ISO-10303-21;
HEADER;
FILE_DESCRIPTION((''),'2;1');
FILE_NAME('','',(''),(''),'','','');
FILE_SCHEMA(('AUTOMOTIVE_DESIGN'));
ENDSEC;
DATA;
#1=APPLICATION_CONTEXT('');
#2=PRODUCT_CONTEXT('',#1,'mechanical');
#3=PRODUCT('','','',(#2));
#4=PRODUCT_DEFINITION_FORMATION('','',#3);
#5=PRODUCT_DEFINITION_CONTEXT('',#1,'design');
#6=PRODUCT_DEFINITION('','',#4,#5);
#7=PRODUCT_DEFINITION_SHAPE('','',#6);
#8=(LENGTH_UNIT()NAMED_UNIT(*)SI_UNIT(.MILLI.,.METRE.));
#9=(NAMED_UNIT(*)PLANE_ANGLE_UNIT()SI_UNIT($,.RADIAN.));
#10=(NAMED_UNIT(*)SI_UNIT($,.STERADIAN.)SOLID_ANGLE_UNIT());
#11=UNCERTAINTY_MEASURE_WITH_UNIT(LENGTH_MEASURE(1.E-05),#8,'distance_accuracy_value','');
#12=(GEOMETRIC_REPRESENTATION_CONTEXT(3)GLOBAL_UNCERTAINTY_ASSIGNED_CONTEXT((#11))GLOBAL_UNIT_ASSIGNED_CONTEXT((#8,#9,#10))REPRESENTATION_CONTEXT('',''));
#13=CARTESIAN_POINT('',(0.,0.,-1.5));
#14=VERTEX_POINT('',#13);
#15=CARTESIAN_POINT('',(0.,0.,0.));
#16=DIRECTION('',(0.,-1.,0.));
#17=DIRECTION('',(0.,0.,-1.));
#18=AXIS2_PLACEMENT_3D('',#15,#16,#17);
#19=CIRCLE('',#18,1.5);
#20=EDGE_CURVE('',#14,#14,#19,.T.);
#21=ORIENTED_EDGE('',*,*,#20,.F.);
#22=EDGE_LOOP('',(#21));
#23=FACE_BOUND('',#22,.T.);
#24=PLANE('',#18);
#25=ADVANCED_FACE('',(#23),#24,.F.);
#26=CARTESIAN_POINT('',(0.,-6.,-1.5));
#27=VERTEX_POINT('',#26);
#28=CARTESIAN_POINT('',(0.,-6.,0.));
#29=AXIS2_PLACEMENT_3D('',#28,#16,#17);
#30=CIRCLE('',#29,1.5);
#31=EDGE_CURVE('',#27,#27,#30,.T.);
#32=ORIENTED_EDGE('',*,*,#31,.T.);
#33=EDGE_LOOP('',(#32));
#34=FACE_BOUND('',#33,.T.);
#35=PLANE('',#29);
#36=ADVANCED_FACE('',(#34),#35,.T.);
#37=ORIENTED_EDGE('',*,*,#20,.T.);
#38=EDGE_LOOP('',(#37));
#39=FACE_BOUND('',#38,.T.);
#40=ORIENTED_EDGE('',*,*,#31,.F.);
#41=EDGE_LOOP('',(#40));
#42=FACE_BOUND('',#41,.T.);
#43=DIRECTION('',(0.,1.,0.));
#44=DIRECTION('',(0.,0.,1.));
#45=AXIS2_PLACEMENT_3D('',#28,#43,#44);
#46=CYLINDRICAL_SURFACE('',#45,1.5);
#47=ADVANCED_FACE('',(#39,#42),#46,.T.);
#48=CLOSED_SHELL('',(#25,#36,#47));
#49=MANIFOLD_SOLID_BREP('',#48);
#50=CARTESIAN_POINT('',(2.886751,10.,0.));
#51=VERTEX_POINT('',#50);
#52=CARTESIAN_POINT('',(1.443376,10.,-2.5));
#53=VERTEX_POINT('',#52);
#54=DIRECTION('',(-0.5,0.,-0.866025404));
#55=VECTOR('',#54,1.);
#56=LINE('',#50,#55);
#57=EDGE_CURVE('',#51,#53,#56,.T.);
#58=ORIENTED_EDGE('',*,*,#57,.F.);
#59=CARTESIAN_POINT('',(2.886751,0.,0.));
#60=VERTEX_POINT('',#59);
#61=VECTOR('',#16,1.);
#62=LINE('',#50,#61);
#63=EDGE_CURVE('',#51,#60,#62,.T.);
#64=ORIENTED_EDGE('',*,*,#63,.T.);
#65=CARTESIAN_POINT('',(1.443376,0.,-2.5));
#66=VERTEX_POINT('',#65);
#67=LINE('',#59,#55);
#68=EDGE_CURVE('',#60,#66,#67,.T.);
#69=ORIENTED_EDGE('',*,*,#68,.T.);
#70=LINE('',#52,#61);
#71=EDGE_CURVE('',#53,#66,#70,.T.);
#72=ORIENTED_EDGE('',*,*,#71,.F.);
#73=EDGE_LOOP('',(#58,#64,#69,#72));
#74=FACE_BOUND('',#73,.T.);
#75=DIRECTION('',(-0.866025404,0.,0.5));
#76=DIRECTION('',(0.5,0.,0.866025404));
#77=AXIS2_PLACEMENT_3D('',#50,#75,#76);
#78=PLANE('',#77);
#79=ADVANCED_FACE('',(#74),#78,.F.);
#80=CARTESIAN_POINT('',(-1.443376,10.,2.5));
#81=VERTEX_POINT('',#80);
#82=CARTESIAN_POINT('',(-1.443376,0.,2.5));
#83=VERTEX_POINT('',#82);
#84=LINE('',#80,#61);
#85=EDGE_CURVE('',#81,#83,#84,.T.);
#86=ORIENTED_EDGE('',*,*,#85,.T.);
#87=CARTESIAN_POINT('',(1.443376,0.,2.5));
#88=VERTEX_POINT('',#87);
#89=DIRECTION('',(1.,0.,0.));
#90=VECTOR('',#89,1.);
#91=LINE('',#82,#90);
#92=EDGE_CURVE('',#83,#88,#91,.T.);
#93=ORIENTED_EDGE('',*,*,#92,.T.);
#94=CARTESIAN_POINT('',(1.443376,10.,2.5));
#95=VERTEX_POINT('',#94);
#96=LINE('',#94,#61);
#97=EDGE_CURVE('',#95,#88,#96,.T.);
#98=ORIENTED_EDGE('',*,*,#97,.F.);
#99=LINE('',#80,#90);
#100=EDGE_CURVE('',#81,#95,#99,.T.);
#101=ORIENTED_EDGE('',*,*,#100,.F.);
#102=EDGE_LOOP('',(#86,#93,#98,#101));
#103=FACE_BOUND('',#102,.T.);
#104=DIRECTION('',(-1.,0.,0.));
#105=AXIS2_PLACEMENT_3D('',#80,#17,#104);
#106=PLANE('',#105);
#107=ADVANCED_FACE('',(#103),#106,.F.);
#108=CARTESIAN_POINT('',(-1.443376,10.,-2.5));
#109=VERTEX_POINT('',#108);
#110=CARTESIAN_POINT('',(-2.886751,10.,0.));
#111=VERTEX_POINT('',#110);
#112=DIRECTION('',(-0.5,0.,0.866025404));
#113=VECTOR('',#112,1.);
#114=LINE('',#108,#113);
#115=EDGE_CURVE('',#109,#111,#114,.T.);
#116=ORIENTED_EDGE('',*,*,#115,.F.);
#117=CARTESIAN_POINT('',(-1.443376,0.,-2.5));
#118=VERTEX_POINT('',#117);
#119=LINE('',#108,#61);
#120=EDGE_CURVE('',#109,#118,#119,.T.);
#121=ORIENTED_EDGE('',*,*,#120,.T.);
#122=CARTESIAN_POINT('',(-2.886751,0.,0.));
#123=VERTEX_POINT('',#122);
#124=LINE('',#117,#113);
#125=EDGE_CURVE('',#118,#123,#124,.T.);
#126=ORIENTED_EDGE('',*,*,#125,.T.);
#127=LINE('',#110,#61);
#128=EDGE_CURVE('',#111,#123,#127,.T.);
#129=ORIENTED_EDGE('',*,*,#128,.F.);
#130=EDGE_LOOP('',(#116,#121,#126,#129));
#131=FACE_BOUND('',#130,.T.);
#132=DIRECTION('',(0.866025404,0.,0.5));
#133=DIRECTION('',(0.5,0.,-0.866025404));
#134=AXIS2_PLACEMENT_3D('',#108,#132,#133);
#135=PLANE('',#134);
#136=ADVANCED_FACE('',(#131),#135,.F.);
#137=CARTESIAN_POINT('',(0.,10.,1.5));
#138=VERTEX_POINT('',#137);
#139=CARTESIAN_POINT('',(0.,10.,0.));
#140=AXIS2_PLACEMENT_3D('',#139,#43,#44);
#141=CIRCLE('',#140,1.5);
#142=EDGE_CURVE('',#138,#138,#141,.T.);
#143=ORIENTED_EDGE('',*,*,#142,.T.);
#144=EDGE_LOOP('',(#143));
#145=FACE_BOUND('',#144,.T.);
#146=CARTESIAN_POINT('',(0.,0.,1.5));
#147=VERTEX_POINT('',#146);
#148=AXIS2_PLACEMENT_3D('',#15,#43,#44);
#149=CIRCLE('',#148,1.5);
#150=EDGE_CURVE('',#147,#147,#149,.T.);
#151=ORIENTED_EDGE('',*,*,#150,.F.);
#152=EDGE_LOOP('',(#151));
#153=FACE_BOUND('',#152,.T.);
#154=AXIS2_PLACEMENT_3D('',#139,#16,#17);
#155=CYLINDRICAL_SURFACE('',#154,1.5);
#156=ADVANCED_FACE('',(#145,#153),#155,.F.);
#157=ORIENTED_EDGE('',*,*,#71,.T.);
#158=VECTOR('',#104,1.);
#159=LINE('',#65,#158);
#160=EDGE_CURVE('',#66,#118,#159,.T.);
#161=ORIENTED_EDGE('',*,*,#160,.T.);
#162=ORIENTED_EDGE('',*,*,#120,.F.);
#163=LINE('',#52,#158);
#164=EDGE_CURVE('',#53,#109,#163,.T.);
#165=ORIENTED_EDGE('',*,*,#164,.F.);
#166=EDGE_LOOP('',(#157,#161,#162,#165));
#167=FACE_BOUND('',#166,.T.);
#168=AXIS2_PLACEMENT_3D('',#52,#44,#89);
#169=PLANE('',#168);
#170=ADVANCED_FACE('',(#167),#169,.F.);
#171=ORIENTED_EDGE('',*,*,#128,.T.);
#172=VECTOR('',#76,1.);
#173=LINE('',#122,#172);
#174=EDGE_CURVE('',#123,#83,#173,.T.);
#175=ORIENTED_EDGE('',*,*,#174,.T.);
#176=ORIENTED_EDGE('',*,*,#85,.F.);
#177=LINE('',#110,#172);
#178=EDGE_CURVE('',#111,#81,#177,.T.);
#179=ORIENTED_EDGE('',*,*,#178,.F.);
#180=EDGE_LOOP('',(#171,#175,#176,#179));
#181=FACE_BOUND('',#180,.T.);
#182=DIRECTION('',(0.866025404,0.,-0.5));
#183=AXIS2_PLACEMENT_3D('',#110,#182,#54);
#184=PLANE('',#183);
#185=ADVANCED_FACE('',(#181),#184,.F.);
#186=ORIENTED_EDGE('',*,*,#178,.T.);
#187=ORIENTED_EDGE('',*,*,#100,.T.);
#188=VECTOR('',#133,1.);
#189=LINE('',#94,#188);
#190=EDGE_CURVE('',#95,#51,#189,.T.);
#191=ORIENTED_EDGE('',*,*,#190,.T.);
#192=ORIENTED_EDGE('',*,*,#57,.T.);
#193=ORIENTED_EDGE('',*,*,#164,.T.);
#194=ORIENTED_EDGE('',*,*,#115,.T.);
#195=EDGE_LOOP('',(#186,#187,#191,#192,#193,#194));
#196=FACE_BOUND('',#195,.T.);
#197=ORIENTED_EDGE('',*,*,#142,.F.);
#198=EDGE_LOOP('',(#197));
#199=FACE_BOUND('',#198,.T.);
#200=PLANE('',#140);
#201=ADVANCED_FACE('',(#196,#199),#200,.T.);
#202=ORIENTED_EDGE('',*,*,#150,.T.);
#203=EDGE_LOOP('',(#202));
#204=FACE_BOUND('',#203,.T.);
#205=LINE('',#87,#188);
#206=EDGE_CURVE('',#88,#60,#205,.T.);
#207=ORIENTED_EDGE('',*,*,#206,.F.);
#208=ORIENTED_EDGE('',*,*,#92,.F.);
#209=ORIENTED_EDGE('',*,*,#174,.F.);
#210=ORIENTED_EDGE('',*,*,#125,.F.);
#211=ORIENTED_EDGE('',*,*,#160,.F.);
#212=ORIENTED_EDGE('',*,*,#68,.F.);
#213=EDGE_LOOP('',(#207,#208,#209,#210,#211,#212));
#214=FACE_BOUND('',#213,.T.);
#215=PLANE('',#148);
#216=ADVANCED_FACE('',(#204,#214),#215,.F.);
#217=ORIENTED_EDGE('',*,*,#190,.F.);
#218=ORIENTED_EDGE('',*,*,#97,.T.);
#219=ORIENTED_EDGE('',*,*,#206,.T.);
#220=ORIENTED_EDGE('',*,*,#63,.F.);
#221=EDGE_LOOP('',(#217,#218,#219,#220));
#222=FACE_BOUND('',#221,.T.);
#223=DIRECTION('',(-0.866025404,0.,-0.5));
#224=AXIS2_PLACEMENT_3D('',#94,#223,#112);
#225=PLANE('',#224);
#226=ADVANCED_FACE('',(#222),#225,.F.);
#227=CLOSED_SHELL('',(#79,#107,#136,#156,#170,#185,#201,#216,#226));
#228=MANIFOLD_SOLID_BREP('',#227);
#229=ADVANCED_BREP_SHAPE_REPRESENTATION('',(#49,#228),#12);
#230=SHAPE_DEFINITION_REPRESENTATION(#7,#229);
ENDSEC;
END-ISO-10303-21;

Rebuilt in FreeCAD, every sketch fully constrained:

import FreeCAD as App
import Part
import Sketcher
from FreeCAD import Vector
Q = App.Units.Quantity


def add_polygon(sketch, points):
    """Adds a closed chain of lines whose ends are joined by coincident constraints."""
    first, n = sketch.GeometryCount, len(points)
    for a, b in zip(points, points[1:] + points[:1]):
        sketch.addGeometry(Part.LineSegment(App.Vector(*a, 0), App.Vector(*b, 0)), False)
    for i in range(n):
        sketch.addConstraint(Sketcher.Constraint("Coincident", first + i, 2, first + (i + 1) % n, 1))

doc = App.newDocument("Part")
body = doc.addObject("PartDesign::Body", "Body")

sketch1 = doc.addObject("Sketcher::SketchObject", "Sketch")
body.addObject(sketch1)
sketch1.AttachmentSupport = (doc.XZ_Plane, [""])
sketch1.MapMode = "FlatFace"
add_polygon(sketch1, [(1.4, 2.5), (2.9, 0), (1.4, -2.5), (-1.4, -2.5), (-2.9, 0), (-1.4, 2.5)])
sketch1.addGeometry(Part.Circle(Vector(0, 0, 0), Vector(0, 0, 1), 1.5), False)
sketch1.addConstraint(Sketcher.Constraint("Horizontal", 2))
sketch1.addConstraint(Sketcher.Constraint("Horizontal", 5))
sketch1.addConstraint(Sketcher.Constraint("Coincident", 6, 3, -1, 1))
sketch1.addConstraint(Sketcher.Constraint("Symmetric", 0, 2, 3, 2, -1, 1))
sketch1.addConstraint(Sketcher.Constraint("Symmetric", 1, 2, 4, 2, -1, 1))
sketch1.addConstraint(Sketcher.Constraint("PointOnObject", 0, 2, -1))
sketch1.addConstraint(Sketcher.Constraint("Parallel", 0, 3))
sketch1.addConstraint(Sketcher.Constraint("Vertical", 2, 2, 4, 2))
sketch1.addConstraint(Sketcher.Constraint("Diameter", 6, Q("3 mm")))
sketch1.addConstraint(Sketcher.Constraint("Angle", 0, Q("-60 deg")))
sketch1.addConstraint(Sketcher.Constraint("DistanceY", 2, 2, 4, 2, Q("5 mm")))
sketch1.addConstraint(Sketcher.Constraint("DistanceX", 2, 2, 2, 1, Q("2.886751 mm")))
pad1 = doc.addObject("PartDesign::Pad", "Pad")
body.addObject(pad1)
pad1.Profile = sketch1
pad1.Length = 10
pad1.Reversed = True
body2 = doc.addObject("PartDesign::Body", "Body001")

sketch2 = doc.addObject("Sketcher::SketchObject", "Sketch001")
body2.addObject(sketch2)
sketch2.AttachmentSupport = (doc.getObject("XZ_Plane001"), [""])
sketch2.MapMode = "FlatFace"
sketch2.addGeometry(Part.Circle(Vector(0, 0, 0), Vector(0, 0, 1), 1.5), False)
sketch2.addConstraint(Sketcher.Constraint("Coincident", 0, 3, -1, 1))
sketch2.addConstraint(Sketcher.Constraint("Diameter", 0, Q("3 mm")))
pad2 = doc.addObject("PartDesign::Pad", "Pad001")
body2.addObject(pad2)
pad2.Profile = sketch2
pad2.Length = 6

doc.recompute()
